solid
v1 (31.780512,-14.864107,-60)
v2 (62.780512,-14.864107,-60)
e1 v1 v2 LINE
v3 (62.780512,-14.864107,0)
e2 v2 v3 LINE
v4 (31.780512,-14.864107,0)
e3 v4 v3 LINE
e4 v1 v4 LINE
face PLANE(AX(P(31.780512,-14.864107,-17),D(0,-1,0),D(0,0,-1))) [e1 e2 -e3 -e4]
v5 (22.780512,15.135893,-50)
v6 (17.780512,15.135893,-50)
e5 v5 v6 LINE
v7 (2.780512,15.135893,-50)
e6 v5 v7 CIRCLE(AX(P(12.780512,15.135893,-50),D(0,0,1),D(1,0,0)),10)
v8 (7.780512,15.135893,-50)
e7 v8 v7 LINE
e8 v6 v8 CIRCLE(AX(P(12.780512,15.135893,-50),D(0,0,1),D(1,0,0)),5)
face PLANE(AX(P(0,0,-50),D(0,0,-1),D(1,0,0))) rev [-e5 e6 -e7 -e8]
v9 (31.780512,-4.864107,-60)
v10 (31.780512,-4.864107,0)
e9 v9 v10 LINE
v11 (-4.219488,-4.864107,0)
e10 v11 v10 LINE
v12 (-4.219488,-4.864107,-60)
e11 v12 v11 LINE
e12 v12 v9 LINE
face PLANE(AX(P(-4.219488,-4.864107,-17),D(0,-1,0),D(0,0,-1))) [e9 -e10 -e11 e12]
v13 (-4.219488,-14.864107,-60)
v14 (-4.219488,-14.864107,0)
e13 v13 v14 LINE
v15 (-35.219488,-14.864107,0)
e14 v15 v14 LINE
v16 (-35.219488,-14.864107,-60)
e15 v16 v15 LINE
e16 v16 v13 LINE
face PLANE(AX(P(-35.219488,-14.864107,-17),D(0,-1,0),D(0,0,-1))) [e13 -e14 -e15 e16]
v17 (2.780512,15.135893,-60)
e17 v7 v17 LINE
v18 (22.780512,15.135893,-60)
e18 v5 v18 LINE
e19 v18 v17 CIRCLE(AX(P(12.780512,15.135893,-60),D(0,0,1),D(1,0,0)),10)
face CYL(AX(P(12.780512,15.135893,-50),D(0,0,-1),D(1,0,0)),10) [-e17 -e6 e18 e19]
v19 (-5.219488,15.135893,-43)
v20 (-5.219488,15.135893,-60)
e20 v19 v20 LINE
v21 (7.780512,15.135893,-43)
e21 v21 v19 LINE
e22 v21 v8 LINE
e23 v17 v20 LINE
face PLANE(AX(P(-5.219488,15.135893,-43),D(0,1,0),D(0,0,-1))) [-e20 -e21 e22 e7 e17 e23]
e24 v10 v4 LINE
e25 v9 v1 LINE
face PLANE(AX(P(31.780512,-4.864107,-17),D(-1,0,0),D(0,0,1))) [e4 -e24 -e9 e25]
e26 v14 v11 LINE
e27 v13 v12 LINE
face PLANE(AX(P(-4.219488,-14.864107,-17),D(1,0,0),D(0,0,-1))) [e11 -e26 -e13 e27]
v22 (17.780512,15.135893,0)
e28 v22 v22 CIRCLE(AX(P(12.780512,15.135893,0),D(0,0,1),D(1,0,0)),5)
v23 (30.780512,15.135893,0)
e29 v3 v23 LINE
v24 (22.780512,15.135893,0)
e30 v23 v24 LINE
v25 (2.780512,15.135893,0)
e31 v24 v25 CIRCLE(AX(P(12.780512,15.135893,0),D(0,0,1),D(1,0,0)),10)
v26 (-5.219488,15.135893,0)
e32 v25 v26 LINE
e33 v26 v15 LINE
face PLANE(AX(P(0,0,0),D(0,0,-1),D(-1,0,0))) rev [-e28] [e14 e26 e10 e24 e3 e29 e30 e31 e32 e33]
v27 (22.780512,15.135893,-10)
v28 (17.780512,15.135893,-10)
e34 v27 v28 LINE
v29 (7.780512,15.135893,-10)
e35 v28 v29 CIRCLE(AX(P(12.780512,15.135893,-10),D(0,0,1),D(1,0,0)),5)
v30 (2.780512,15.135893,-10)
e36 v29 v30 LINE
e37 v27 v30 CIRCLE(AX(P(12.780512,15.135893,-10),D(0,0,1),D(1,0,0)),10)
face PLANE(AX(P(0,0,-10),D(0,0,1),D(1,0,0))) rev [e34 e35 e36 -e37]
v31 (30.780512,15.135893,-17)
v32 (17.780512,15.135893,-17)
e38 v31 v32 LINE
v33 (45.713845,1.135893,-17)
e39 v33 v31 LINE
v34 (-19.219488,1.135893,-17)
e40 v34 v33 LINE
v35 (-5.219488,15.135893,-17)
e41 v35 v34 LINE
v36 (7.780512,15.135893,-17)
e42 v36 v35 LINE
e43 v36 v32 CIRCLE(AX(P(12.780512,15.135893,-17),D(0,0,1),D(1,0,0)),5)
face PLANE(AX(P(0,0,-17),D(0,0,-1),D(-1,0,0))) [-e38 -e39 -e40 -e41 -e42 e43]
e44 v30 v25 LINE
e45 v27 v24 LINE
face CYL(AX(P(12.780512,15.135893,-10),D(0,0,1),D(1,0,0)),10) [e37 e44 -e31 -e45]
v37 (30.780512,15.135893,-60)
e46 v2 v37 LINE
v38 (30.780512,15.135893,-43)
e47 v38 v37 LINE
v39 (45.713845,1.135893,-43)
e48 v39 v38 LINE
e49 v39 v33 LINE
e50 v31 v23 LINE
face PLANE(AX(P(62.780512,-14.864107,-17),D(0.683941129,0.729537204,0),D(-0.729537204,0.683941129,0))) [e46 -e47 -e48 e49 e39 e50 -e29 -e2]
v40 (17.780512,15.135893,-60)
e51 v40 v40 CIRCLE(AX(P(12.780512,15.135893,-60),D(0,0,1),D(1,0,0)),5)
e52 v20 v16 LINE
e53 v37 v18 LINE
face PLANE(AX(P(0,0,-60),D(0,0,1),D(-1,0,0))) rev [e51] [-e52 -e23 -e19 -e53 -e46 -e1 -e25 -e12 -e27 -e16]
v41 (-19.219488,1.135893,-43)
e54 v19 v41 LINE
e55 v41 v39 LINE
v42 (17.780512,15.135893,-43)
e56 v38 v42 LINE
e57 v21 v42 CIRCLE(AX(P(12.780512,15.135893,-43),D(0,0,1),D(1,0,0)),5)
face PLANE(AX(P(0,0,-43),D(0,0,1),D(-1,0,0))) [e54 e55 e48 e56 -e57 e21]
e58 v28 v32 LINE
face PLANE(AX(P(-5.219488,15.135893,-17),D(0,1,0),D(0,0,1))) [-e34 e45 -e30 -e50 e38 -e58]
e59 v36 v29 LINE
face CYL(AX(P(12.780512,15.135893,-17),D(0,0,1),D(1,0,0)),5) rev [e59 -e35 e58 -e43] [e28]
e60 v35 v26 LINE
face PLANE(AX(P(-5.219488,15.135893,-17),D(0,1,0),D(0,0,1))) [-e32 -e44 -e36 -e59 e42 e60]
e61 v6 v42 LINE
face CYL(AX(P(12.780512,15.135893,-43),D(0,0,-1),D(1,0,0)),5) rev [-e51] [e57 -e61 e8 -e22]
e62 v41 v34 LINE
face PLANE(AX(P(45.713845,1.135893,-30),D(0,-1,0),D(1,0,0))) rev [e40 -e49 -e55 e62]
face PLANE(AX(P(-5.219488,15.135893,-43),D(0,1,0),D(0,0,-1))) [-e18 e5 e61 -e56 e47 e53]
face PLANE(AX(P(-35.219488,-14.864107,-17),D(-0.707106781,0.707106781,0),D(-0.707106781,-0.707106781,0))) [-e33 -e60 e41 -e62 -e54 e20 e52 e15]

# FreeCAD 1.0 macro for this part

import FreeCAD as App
import Part
import Sketcher

V = App.Vector
Q = App.Units.Quantity


def add_polygon(sketch, points):
    """Adds a closed chain of lines whose ends are joined by coincident constraints."""
    first, n = sketch.GeometryCount, len(points)
    for a, b in zip(points, points[1:] + points[:1]):
        sketch.addGeometry(Part.LineSegment(App.Vector(*a, 0), App.Vector(*b, 0)), False)
    for i in range(n):
        sketch.addConstraint(Sketcher.Constraint("Coincident", first + i, 2, first + (i + 1) % n, 1))

doc = App.newDocument("Part")
body = doc.addObject("PartDesign::Body", "Body")

# Sketch on XY plane
sketch1 = body.newObject("Sketcher::SketchObject", "Sketch")
sketch1.AttachmentSupport = (doc.getObject("XY_Plane"), [""])
sketch1.MapMode = "FlatFace"
add_polygon(sketch1, [(-35, -15), (-4, -15), (-4, -5), (32, -5), (32, -15), (63, -15), (31, 15), (-5, 15)])  # lines 0-7
sketch1.addConstraint([
    Sketcher.Constraint("Horizontal", 0),
    Sketcher.Constraint("Vertical", 1),
    Sketcher.Constraint("Horizontal", 2),
    Sketcher.Constraint("Vertical", 3),
    Sketcher.Constraint("Horizontal", 4),
    Sketcher.Constraint("Horizontal", 6),
    Sketcher.Constraint("Horizontal", 0, 2, 3, 2),
    Sketcher.Constraint("Equal", 0, 4),
    Sketcher.Constraint("Equal", 2, 6),
    Sketcher.Constraint("DistanceX", 0, 1, 0, 2, Q("31 mm")),
    Sketcher.Constraint("DistanceX", 2, 1, 2, 2, Q("36 mm")),
    Sketcher.Constraint("DistanceY", 1, 1, 1, 2, Q("10 mm")),
    Sketcher.Constraint("Angle", 7, Q("-135 deg")),
    Sketcher.Constraint("DistanceX", 5, 2, 2, 2, Q("1 mm")),
    Sketcher.Constraint("DistanceX", 0, 2, -1, 1, Q("4.219488 mm")),
    Sketcher.Constraint("DistanceY", 0, 2, -1, 1, Q("14.864107 mm")),
])
pad1 = body.newObject("PartDesign::Pad", "Pad")
pad1.Profile = sketch1
pad1.Length = 17
pad1.Reversed = True

# Sketch on XY plane
sketch2 = body.newObject("Sketcher::SketchObject", "Sketch001")
sketch2.AttachmentSupport = (doc.getObject("XY_Plane"), [""])
sketch2.MapMode = "FlatFace"
sketch2.addGeometry(Part.Circle(V(13, 15, 0), V(0, 0, 1), 10), False)
sketch2.addConstraint([
    Sketcher.Constraint("Diameter", 0, Q("20 mm")),
    Sketcher.Constraint("DistanceX", -1, 1, 0, 3, Q("12.780512 mm")),
    Sketcher.Constraint("DistanceY", -1, 1, 0, 3, Q("15.135893 mm")),
])
pad2 = body.newObject("PartDesign::Pad", "Pad001")
pad2.Profile = sketch2
pad2.Length = 10
pad2.Reversed = True

# Sketch on XY plane
sketch3 = body.newObject("Sketcher::SketchObject", "Sketch002")
sketch3.AttachmentSupport = (doc.getObject("XY_Plane"), [""])
sketch3.MapMode = "FlatFace"
sketch3.addGeometry(Part.Circle(V(13, 15, 0), V(0, 0, 1), 5), False)
sketch3.addConstraint([
    Sketcher.Constraint("Diameter", 0, Q("10 mm")),
    Sketcher.Constraint("DistanceX", -1, 1, 0, 3, Q("12.780512 mm")),
    Sketcher.Constraint("DistanceY", -1, 1, 0, 3, Q("15.135893 mm")),
])
pocket1 = body.newObject("PartDesign::Pocket", "Pocket")
pocket1.Profile = sketch3
pocket1.Length = 17

# Sketch on XY plane
sketch4 = body.newObject("Sketcher::SketchObject", "Sketch003")
sketch4.AttachmentSupport = (doc.getObject("XY_Plane"), [""])
sketch4.MapMode = "FlatFace"
sketch4.AttachmentOffset = App.Placement(V(0, 0, -17), App.Rotation())
add_polygon(sketch4, [(46, 1), (63, -15), (32, -15), (32, -5), (-4, -5), (-4, -15), (-35, -15), (-19, 1)])  # lines 0-7
sketch4.addConstraint([
    Sketcher.Constraint("Horizontal", 1),
    Sketcher.Constraint("Vertical", 2),
    Sketcher.Constraint("Horizontal", 3),
    Sketcher.Constraint("Vertical", 4),
    Sketcher.Constraint("Horizontal", 5),
    Sketcher.Constraint("Horizontal", 7),
    Sketcher.Constraint("Horizontal", 1, 2, 4, 2),
    Sketcher.Constraint("Equal", 1, 5),
    Sketcher.Constraint("DistanceX", 1, 2, 1, 1, Q("31 mm")),
    Sketcher.Constraint("DistanceX", 3, 2, 3, 1, Q("36 mm")),
    Sketcher.Constraint("DistanceY", 2, 1, 2, 2, Q("10 mm")),
    Sketcher.Constraint("Angle", 6, Q("45 deg")),
    Sketcher.Constraint("DistanceX", 6, 2, 3, 2, Q("15 mm")),
    Sketcher.Constraint("DistanceX", 7, 1, 7, 2, Q("64.933333 mm")),
    Sketcher.Constraint("DistanceX", -1, 1, 0, 2, Q("62.780512 mm")),
    Sketcher.Constraint("DistanceY", 0, 2, -1, 1, Q("14.864107 mm")),
])
pad3 = body.newObject("PartDesign::Pad", "Pad002")
pad3.Profile = sketch4
pad3.Length = 13
pad3.Reversed = True
body2 = doc.addObject("PartDesign::Body", "Body001")
doc.recompute()

body2.BaseFeature = body
doc.recompute()

mirroring = doc.addObject("Part::Mirroring", "Mirroring")
mirroring.Source = body
mirroring.Base = V(0, 0, -30)
mirroring.Normal = V(0, 0, -1)
body3 = doc.addObject("PartDesign::Body", "Body002")
body3.BaseFeature = mirroring
boolean = body2.newObject("PartDesign::Boolean", "Boolean")
boolean.Type = "Fuse"
boolean.addObjects([body3])
doc.recompute()
mirroring.Visibility = False

doc.recompute()
